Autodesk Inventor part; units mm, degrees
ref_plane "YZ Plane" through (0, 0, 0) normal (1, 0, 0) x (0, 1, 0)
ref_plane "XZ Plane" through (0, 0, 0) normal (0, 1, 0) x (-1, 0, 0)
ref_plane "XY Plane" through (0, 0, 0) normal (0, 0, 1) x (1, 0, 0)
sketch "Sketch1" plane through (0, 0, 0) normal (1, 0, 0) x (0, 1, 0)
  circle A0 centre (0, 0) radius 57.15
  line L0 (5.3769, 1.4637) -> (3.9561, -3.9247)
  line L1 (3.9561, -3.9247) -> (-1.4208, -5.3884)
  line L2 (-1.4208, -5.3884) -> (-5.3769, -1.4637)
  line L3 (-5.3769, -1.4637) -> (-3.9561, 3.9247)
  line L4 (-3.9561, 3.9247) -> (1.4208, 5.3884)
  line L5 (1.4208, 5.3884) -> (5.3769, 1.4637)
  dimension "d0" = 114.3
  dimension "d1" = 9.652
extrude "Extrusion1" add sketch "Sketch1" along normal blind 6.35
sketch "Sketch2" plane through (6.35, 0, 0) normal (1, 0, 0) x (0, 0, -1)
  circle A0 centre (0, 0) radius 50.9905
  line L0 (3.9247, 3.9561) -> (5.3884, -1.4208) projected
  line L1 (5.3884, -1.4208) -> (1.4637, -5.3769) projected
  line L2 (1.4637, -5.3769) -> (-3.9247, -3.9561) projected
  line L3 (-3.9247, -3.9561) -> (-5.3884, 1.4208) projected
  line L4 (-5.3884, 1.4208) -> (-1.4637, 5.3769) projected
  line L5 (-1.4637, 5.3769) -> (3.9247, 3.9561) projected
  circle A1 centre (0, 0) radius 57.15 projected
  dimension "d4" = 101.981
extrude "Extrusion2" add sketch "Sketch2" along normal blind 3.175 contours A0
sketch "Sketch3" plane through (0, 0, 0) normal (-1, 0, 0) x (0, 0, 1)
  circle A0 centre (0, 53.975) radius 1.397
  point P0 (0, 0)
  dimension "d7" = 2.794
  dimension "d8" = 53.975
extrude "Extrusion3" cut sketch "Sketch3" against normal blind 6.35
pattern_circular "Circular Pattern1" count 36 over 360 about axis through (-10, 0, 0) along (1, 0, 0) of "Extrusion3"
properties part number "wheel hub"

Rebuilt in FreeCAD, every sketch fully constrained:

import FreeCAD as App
import Part
import Sketcher
Q = App.Units.Quantity


def add_polygon(sketch, points):
    """Adds a closed chain of lines whose ends are joined by coincident constraints."""
    first, n = sketch.GeometryCount, len(points)
    for a, b in zip(points, points[1:] + points[:1]):
        sketch.addGeometry(Part.LineSegment(App.Vector(*a, 0), App.Vector(*b, 0)), False)
    for i in range(n):
        sketch.addConstraint(Sketcher.Constraint("Coincident", first + i, 2, first + (i + 1) % n, 1))

doc = App.newDocument("Part")
body = doc.addObject("PartDesign::Body", "Body")

# Sketch on YZ plane
sketch1 = body.newObject("Sketcher::SketchObject", "Sketch")
sketch1.AttachmentSupport = (doc.getObject("YZ_Plane"), [""])
sketch1.MapMode = "FlatFace"
sketch1.addGeometry(Part.Circle(App.Vector(0, 0, 0), App.Vector(0, 0, 1), 57), False)  # 0
add_polygon(sketch1, [(1, 5), (5, 1), (4, -4), (-1, -5), (-5, -1), (-4, 4)])  # lines 1-6
sketch1.addConstraint([
    Sketcher.Constraint("Coincident", 0, 3, -1, 1),
    Sketcher.Constraint("Symmetric", 1, 2, 4, 2, -1, 1),
    Sketcher.Constraint("Symmetric", 2, 2, 5, 2, -1, 1),
    Sketcher.Constraint("Symmetric", 3, 2, 6, 2, -1, 1),
    Sketcher.Constraint("Equal", 1, 2),
    Sketcher.Constraint("Equal", 2, 3),
    Sketcher.Constraint("Diameter", 0, Q("4.5 in")),
    Sketcher.Constraint("Distance", 1, Q("0.2194 in")),
    Sketcher.Constraint("DistanceX", -1, 1, 1, 2, Q("0.2117 in")),
    Sketcher.Constraint("DistanceX", 3, 2, 2, 2, Q("0.2117 in")),
    Sketcher.Constraint("DistanceY", 2, 2, 4, 2, Q("0.0969 in")),
])
pad1 = body.newObject("PartDesign::Pad", "Pad")
pad1.Profile = sketch1
pad1.Length = Q("0.25 in")

# Sketch on YZ plane
sketch2 = body.newObject("Sketcher::SketchObject", "Sketch001")
sketch2.AttachmentSupport = (doc.getObject("YZ_Plane"), [""])
sketch2.MapMode = "FlatFace"
sketch2.AttachmentOffset = App.Placement(App.Vector(0, 0, 0.25 * 25.4), App.Rotation())
sketch2.addGeometry(Part.Circle(App.Vector(0, 0, 0), App.Vector(0, 0, 1), 51), False)  # 0
add_polygon(sketch2, [(5, 1), (4, -4), (-1, -5), (-5, -1), (-4, 4), (1, 5)])  # lines 1-6
sketch2.addConstraint([
    Sketcher.Constraint("Coincident", 0, 3, -1, 1),
    Sketcher.Constraint("Symmetric", 1, 2, 4, 2, -1, 1),
    Sketcher.Constraint("Symmetric", 2, 2, 5, 2, -1, 1),
    Sketcher.Constraint("Symmetric", 3, 2, 6, 2, -1, 1),
    Sketcher.Constraint("Equal", 1, 2),
    Sketcher.Constraint("Equal", 2, 3),
    Sketcher.Constraint("Diameter", 0, Q("4.015 in")),
    Sketcher.Constraint("Distance", 1, Q("0.2194 in")),
    Sketcher.Constraint("DistanceX", 3, 2, -1, 1, Q("0.2117 in")),
    Sketcher.Constraint("DistanceX", 2, 2, 1, 2, Q("0.2117 in")),
    Sketcher.Constraint("DistanceY", 1, 2, 3, 2, Q("0.0969 in")),
])
pad2 = body.newObject("PartDesign::Pad", "Pad001")
pad2.Profile = sketch2
pad2.Length = Q("0.125 in")

# Sketch on YZ plane
sketch3 = body.newObject("Sketcher::SketchObject", "Sketch002")
sketch3.AttachmentSupport = (doc.getObject("YZ_Plane"), [""])
sketch3.MapMode = "FlatFace"
sketch3.addGeometry(Part.Circle(App.Vector(54, 0, 0), App.Vector(0, 0, 1), 1.4), False)
sketch3.addConstraint([
    Sketcher.Constraint("PointOnObject", 0, 3, -1),
    Sketcher.Constraint("Diameter", 0, Q("0.11 in")),
    Sketcher.Constraint("DistanceX", -1, 1, 0, 3, Q("2.125 in")),
])
pocket1 = body.newObject("PartDesign::Pocket", "Pocket")
pocket1.Profile = sketch3
pocket1.Length = Q("0.25 in")
pocket1.Reversed = True
doc.recompute()

polarpattern = body.newObject("PartDesign::PolarPattern", "PolarPattern")
polarpattern.Originals = [pocket1]
polarpattern.Axis = (doc.getObject("X_Axis"), [""])
polarpattern.Angle = 360
polarpattern.Occurrences = 36
body.Tip = polarpattern

doc.recompute()
